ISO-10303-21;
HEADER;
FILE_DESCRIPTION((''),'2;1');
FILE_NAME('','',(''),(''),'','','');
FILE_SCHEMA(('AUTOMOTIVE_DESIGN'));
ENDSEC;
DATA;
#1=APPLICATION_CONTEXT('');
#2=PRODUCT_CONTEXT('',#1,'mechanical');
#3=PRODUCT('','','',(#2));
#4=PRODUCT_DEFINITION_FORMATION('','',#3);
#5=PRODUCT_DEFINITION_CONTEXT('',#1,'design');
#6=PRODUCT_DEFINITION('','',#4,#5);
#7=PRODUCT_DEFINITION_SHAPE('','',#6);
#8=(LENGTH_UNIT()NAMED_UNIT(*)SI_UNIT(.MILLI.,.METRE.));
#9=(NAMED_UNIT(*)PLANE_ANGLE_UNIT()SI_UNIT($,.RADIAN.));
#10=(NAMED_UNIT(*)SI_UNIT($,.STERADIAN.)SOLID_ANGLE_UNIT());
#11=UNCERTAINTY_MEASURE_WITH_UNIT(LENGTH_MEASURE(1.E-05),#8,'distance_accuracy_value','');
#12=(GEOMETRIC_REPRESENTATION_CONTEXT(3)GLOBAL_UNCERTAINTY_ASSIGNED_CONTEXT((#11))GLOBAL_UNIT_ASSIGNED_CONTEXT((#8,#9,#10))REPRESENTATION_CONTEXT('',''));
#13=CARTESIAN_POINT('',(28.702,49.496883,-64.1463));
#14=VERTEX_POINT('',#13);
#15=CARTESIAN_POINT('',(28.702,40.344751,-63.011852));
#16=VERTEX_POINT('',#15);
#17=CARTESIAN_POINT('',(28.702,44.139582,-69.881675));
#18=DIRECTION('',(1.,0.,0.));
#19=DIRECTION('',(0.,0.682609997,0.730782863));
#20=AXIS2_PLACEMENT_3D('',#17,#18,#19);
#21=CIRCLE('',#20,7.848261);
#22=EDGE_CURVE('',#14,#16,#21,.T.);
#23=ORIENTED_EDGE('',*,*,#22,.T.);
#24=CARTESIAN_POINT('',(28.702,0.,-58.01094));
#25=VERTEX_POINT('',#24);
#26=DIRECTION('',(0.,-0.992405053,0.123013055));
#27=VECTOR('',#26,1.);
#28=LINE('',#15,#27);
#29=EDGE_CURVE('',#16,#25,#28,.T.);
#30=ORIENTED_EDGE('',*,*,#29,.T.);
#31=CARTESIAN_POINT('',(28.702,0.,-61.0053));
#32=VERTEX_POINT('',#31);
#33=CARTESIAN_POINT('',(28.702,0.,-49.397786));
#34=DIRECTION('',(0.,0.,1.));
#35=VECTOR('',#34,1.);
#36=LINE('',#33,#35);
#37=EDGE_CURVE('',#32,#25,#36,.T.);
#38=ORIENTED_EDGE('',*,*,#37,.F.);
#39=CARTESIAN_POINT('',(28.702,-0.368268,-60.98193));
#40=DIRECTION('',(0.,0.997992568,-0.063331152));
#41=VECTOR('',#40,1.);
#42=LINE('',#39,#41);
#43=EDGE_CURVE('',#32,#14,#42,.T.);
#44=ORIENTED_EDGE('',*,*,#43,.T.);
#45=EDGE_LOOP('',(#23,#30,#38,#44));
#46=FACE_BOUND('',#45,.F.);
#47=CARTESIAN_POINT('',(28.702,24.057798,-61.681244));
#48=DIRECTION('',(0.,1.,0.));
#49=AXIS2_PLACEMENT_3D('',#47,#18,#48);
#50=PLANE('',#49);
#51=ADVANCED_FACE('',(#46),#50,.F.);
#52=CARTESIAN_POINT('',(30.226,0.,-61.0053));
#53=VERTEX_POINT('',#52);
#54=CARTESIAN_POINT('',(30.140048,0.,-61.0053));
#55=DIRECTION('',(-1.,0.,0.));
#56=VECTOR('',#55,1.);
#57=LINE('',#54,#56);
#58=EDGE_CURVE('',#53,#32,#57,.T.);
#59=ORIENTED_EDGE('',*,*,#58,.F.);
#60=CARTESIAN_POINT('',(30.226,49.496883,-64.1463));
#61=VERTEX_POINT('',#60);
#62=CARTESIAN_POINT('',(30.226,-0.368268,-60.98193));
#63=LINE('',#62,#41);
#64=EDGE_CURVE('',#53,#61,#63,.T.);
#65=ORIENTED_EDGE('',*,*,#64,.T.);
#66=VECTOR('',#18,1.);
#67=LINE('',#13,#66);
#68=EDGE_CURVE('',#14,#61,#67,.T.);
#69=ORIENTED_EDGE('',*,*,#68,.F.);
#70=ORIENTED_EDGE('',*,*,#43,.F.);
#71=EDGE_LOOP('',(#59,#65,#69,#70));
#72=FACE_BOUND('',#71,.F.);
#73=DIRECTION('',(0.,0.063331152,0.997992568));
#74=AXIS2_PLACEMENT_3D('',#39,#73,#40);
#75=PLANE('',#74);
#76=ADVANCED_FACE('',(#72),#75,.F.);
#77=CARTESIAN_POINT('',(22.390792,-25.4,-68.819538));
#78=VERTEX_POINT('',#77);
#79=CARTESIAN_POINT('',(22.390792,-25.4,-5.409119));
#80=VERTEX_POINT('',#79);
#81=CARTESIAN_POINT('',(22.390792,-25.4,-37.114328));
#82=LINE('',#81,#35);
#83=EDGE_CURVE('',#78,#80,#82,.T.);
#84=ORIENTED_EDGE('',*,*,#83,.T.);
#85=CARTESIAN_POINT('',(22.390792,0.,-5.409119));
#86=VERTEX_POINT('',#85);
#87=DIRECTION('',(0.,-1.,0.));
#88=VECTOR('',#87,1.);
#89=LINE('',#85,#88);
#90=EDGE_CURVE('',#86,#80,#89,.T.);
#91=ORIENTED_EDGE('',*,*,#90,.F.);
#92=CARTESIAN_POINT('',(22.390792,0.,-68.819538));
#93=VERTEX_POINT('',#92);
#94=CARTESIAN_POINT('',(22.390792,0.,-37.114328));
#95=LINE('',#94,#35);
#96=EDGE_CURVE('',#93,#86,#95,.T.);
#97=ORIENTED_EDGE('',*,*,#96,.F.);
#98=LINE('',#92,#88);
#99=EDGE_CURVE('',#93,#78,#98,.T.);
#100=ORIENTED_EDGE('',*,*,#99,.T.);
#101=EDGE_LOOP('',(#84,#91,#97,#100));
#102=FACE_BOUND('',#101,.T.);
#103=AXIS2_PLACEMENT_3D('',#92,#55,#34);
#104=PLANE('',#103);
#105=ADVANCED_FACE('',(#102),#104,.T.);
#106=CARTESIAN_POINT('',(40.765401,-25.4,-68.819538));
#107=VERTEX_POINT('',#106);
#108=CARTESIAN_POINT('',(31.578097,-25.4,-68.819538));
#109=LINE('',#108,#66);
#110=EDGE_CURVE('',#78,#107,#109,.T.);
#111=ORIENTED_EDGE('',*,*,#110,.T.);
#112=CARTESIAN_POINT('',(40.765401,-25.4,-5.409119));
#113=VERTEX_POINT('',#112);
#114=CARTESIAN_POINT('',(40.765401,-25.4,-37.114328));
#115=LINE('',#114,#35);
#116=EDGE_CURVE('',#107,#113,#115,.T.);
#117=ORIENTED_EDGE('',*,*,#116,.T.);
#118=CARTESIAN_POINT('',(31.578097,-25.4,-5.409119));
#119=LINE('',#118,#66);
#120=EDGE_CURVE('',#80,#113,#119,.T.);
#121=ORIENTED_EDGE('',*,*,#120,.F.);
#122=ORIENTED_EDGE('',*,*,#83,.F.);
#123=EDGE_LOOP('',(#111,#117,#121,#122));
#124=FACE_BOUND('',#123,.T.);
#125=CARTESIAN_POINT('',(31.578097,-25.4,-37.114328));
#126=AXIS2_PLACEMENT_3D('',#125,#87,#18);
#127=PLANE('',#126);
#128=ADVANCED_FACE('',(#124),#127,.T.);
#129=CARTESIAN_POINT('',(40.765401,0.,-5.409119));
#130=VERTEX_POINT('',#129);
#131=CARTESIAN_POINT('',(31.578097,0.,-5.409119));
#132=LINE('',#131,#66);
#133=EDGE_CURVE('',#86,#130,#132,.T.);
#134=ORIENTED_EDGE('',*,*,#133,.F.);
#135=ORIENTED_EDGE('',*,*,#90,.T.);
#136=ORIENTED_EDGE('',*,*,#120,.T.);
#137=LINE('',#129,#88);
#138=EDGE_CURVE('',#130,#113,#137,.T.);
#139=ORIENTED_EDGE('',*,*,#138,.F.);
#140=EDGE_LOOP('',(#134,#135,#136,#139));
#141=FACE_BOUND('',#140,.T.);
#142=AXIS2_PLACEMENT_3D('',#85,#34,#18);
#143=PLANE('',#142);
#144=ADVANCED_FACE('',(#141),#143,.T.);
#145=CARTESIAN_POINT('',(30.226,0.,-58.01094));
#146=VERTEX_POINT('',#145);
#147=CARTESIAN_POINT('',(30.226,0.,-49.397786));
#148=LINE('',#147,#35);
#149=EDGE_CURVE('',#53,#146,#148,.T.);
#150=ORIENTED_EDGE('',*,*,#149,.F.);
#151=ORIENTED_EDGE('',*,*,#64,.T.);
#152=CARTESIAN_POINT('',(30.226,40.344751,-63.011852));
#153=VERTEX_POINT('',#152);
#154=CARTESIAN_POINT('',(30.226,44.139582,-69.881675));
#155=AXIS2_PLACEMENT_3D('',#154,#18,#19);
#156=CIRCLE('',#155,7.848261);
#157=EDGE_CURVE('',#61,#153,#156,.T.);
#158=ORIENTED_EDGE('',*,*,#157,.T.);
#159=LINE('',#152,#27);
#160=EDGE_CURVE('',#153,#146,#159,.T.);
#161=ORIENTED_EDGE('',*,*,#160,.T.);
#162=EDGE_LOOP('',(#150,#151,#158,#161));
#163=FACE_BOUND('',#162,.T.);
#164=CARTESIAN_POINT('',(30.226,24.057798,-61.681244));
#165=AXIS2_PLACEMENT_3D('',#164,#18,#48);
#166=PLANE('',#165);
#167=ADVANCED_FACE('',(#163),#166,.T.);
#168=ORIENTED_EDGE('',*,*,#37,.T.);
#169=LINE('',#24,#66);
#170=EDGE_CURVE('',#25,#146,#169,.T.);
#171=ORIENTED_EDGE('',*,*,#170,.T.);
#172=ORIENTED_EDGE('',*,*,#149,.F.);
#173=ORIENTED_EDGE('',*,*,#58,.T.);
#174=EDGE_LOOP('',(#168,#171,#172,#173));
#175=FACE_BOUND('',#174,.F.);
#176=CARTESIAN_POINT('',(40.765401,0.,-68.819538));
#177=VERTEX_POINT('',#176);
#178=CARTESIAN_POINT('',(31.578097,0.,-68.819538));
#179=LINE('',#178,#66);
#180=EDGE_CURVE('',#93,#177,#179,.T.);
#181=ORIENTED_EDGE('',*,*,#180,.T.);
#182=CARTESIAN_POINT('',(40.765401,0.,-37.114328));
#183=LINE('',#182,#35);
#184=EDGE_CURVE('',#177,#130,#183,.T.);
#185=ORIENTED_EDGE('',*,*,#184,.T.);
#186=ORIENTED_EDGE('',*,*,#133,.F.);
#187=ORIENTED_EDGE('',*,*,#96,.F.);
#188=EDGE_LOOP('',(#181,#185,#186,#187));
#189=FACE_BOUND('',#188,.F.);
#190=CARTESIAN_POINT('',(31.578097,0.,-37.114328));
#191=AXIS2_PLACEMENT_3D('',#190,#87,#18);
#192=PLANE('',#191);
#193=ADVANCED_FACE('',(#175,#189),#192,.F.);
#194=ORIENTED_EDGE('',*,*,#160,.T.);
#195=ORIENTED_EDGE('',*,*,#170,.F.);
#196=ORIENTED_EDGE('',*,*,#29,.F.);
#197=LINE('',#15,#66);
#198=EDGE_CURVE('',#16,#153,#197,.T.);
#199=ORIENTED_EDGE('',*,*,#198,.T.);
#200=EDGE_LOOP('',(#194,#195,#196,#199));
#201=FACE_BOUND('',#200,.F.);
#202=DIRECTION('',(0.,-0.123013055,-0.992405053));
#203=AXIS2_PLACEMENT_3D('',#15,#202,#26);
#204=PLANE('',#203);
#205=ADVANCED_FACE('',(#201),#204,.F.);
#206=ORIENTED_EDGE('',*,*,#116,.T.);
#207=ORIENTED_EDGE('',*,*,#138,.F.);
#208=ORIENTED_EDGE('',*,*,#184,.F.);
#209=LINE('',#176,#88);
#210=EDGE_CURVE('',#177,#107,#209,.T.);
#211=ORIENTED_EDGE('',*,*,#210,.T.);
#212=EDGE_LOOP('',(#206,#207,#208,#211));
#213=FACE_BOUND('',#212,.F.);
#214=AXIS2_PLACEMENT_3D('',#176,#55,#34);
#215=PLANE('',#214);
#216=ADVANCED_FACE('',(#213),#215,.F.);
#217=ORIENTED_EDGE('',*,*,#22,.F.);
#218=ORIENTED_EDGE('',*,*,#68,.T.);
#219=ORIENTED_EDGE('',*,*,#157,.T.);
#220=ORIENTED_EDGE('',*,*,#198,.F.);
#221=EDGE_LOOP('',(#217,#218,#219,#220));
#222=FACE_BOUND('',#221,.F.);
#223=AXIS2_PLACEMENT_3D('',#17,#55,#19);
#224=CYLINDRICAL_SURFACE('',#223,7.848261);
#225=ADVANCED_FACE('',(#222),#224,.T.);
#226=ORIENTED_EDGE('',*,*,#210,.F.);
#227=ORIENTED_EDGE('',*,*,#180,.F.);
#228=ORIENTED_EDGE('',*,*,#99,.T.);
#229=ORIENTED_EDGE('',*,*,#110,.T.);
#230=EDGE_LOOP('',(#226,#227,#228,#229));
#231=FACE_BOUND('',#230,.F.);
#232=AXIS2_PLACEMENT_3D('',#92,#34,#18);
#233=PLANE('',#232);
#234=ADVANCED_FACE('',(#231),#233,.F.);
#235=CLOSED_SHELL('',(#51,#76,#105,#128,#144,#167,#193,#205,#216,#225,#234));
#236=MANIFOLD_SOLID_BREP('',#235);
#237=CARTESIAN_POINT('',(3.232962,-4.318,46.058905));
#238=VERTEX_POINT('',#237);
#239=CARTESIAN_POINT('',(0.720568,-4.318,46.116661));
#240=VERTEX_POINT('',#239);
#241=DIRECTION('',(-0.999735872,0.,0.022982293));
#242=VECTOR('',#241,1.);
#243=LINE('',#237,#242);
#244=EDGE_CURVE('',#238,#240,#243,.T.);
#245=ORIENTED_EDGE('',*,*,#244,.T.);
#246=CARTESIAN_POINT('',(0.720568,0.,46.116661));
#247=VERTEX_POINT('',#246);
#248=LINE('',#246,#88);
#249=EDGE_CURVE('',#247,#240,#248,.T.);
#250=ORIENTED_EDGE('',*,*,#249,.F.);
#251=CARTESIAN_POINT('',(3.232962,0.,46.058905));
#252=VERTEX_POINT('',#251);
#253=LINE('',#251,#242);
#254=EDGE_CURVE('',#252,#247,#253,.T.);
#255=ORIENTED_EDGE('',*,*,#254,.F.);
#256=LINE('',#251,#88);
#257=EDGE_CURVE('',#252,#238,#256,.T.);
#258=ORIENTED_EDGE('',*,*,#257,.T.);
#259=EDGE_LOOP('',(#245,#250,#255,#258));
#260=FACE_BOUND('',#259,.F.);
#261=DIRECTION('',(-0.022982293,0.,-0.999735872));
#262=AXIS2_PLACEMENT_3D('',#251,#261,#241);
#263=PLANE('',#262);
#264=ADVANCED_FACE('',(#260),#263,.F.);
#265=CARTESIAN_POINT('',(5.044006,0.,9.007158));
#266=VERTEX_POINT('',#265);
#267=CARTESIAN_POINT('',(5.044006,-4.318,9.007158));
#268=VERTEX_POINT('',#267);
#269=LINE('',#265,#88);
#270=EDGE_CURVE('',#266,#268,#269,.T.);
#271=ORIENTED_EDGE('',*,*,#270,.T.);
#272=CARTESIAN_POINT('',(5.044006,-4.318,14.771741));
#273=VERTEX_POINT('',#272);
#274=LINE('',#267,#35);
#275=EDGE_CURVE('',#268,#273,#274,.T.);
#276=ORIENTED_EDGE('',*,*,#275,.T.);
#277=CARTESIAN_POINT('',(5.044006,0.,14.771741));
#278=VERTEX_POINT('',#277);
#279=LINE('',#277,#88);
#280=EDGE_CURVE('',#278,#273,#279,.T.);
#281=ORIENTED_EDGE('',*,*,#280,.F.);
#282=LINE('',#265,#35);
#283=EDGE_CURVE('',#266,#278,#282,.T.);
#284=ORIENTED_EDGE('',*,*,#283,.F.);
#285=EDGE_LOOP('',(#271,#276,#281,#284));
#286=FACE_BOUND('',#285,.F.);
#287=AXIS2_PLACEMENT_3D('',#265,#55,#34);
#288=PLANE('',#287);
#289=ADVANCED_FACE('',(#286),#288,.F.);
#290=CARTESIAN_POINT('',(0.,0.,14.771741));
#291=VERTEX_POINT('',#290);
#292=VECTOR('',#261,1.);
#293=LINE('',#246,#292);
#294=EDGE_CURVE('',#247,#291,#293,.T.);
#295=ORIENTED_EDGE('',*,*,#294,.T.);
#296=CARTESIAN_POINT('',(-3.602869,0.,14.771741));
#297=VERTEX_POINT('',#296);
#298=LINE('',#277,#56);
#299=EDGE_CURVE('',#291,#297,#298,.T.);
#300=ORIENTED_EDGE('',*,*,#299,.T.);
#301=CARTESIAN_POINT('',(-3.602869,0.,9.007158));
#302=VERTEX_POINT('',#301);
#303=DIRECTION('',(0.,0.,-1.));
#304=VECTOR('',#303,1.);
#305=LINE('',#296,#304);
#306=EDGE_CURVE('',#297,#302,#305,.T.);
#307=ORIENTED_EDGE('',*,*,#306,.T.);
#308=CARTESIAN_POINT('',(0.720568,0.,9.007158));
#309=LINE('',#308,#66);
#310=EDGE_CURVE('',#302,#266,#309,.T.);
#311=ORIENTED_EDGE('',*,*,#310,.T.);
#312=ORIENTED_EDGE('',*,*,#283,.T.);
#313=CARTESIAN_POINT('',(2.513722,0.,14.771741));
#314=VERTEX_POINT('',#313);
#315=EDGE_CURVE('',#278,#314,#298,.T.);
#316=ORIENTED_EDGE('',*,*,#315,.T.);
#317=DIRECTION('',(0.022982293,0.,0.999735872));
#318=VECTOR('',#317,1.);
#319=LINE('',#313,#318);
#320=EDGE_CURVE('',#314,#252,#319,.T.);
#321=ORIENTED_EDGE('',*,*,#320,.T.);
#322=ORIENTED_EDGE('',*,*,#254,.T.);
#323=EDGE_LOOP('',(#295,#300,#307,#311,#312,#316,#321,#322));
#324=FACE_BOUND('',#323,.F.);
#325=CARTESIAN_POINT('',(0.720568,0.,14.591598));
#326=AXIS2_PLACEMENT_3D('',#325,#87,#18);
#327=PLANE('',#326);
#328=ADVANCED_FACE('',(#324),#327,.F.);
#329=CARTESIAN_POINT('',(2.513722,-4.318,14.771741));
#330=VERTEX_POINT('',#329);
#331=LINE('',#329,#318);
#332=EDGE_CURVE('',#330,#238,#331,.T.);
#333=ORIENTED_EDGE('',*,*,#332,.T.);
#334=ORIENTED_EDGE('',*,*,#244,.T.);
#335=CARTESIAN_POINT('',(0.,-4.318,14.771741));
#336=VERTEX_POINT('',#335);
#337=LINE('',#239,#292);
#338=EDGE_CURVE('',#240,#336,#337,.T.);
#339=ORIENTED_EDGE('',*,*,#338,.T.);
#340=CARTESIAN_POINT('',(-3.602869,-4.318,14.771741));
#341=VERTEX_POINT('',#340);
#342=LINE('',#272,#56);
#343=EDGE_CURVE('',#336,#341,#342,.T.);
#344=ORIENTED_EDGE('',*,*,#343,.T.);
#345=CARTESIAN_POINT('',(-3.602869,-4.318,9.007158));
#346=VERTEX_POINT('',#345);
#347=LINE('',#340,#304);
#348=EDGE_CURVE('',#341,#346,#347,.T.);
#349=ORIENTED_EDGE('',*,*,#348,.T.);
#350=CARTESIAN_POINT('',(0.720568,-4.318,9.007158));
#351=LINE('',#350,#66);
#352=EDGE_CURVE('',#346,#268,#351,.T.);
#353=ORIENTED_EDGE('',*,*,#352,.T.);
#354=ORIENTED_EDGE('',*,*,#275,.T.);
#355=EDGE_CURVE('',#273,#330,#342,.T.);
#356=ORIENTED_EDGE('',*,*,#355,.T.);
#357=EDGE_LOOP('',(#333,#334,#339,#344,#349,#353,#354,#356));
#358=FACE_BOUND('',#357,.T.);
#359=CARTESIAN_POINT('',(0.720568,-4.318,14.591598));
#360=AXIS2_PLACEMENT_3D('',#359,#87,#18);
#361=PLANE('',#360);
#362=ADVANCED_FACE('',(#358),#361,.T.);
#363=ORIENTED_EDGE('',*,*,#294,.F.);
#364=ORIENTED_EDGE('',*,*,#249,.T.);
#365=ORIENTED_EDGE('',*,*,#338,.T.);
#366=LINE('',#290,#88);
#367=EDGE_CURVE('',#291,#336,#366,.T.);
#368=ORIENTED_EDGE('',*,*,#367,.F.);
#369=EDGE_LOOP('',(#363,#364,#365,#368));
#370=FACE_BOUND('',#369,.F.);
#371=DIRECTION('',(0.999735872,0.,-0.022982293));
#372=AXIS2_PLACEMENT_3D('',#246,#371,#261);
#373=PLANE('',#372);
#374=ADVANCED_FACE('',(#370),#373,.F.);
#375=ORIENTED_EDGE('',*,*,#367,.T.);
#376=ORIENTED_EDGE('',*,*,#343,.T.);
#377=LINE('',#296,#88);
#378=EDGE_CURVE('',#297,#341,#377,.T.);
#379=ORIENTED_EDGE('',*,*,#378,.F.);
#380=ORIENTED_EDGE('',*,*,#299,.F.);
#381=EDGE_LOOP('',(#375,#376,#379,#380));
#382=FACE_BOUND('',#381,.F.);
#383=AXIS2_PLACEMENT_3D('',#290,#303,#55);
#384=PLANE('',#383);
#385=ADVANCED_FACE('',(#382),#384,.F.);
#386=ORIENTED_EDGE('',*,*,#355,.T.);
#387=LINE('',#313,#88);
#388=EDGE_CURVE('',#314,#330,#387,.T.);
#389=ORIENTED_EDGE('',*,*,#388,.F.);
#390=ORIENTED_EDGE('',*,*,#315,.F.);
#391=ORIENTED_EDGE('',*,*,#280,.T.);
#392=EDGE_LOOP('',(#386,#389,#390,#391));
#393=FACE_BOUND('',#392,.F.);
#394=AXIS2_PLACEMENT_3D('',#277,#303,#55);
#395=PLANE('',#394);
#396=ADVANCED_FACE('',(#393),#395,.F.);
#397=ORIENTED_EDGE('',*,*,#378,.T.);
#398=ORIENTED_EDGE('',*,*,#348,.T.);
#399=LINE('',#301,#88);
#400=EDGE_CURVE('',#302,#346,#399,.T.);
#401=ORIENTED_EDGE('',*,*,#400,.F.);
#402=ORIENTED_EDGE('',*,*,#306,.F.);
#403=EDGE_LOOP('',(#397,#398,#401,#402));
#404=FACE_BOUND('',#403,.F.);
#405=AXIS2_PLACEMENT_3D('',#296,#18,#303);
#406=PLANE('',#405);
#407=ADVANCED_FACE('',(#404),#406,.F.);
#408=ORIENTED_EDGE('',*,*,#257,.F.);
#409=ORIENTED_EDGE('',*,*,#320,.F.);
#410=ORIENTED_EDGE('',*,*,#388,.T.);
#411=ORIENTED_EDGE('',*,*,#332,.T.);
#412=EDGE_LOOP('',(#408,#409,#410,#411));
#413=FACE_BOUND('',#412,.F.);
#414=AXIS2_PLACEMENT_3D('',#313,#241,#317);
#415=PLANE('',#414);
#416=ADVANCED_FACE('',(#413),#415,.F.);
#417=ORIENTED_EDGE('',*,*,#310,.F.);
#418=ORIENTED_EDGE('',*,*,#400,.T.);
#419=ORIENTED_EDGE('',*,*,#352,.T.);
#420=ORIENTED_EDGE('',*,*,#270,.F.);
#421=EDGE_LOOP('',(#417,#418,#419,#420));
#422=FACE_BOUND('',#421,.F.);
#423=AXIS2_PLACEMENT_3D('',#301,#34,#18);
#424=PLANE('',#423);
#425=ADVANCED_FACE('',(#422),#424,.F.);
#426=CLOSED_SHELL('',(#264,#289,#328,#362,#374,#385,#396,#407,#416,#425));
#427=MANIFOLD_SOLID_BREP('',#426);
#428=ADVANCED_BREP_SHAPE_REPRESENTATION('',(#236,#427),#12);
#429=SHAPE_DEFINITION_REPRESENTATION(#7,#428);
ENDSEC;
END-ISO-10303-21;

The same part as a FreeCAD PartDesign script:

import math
import FreeCAD as App
import Part
import Sketcher

V = App.Vector
Q = App.Units.Quantity

doc = App.newDocument("Part")
body = doc.addObject("PartDesign::Body", "Body")

# Sketch on XZ plane
sketch1 = doc.addObject("Sketcher::SketchObject", "Sketch")
body.addObject(sketch1)
sketch1.AttachmentSupport = (doc.XZ_Plane, [""])
sketch1.MapMode = "FlatFace"
sketch1.addGeometry(Part.LineSegment(V(-3.6, 14.8, 0), V(-3.6, 9, 0)), False)
sketch1.addGeometry(Part.LineSegment(V(-3.6, 9, 0), V(5, 9, 0)), False)
sketch1.addGeometry(Part.LineSegment(V(5, 9, 0), V(5, 14.8, 0)), False)
sketch1.addGeometry(Part.LineSegment(V(5, 14.8, 0), V(2.5, 14.8, 0)), False)
sketch1.addGeometry(Part.LineSegment(V(2.5, 14.8, 0), V(3.2, 46.1, 0)), False)
sketch1.addGeometry(Part.LineSegment(V(3.2, 46.1, 0), V(0.7, 46.1, 0)), False)
sketch1.addGeometry(Part.LineSegment(V(0.7, 46.1, 0), V(0, 14.8, 0)), False)
sketch1.addGeometry(Part.LineSegment(V(0, 14.8, 0), V(-3.6, 14.8, 0)), False)
sketch1.addConstraint(Sketcher.Constraint("Coincident", 0, 2, 1, 1))
sketch1.addConstraint(Sketcher.Constraint("Coincident", 1, 2, 2, 1))
sketch1.addConstraint(Sketcher.Constraint("Coincident", 2, 2, 3, 1))
sketch1.addConstraint(Sketcher.Constraint("Coincident", 3, 2, 4, 1))
sketch1.addConstraint(Sketcher.Constraint("Coincident", 4, 2, 5, 1))
sketch1.addConstraint(Sketcher.Constraint("Coincident", 5, 2, 6, 1))
sketch1.addConstraint(Sketcher.Constraint("Coincident", 6, 2, 7, 1))
sketch1.addConstraint(Sketcher.Constraint("Coincident", 7, 2, 0, 1))
sketch1.addConstraint(Sketcher.Constraint("Vertical", 0))
sketch1.addConstraint(Sketcher.Constraint("Horizontal", 1))
sketch1.addConstraint(Sketcher.Constraint("Vertical", 2))
sketch1.addConstraint(Sketcher.Constraint("Horizontal", 3))
sketch1.addConstraint(Sketcher.Constraint("Horizontal", 7))
sketch1.addConstraint(Sketcher.Constraint("PointOnObject", 6, 2, -2))
sketch1.addConstraint(Sketcher.Constraint("Perpendicular", 4, 5))
sketch1.addConstraint(Sketcher.Constraint("Perpendicular", 5, 6))
sketch1.addConstraint(Sketcher.Constraint("Horizontal", 3, 2, 6, 2))
sketch1.addConstraint(Sketcher.Constraint("Distance", 6, 31.353202))
sketch1.addConstraint(Sketcher.Constraint("DistanceX", 7, 2, 7, 1, 3.602869))
sketch1.addConstraint(Sketcher.Constraint("Distance", 4, 31.295431))
sketch1.addConstraint(Sketcher.Constraint("DistanceX", 1, 1, 1, 2, 8.646875))
sketch1.addConstraint(Sketcher.Constraint("DistanceX", 3, 2, 3, 1, 2.530284))
sketch1.addConstraint(Sketcher.Constraint("DistanceY", 0, 2, 0, 1, 5.764583))
sketch1.addConstraint(Sketcher.Constraint("DistanceY", -1, 1, 2, 2, 14.771741))
pad1 = doc.addObject("PartDesign::Pad", "Pad")
body.addObject(pad1)
pad1.Profile = sketch1
pad1.Length = Q("0.17 in")
body2 = doc.addObject("PartDesign::Body", "Body001")

# Sketch on XZ plane
sketch2 = doc.addObject("Sketcher::SketchObject", "Sketch001")
body2.addObject(sketch2)
sketch2.AttachmentSupport = (doc.getObject("XZ_Plane001"), [""])
sketch2.MapMode = "FlatFace"
sketch2.addGeometry(Part.LineSegment(V(22, -5, 0), V(22, -69, 0)), False)
sketch2.addGeometry(Part.LineSegment(V(22, -69, 0), V(41, -69, 0)), False)
sketch2.addGeometry(Part.LineSegment(V(41, -69, 0), V(41, -5, 0)), False)
sketch2.addGeometry(Part.LineSegment(V(41, -5, 0), V(22, -5, 0)), False)
sketch2.addConstraint(Sketcher.Constraint("Coincident", 0, 2, 1, 1))
sketch2.addConstraint(Sketcher.Constraint("Coincident", 1, 2, 2, 1))
sketch2.addConstraint(Sketcher.Constraint("Coincident", 2, 2, 3, 1))
sketch2.addConstraint(Sketcher.Constraint("Coincident", 3, 2, 0, 1))
sketch2.addConstraint(Sketcher.Constraint("Vertical", 0))
sketch2.addConstraint(Sketcher.Constraint("Horizontal", 1))
sketch2.addConstraint(Sketcher.Constraint("Vertical", 2))
sketch2.addConstraint(Sketcher.Constraint("Horizontal", 3))
sketch2.addConstraint(Sketcher.Constraint("DistanceX", 1, 1, 1, 2, 18.374609))
sketch2.addConstraint(Sketcher.Constraint("DistanceY", 0, 2, 0, 1, 63.410419))
sketch2.addConstraint(Sketcher.Constraint("DistanceX", -1, 1, 1, 2, 40.765401))
sketch2.addConstraint(Sketcher.Constraint("DistanceY", 2, 2, -1, 1, 5.409119))
pad2 = doc.addObject("PartDesign::Pad", "Pad001")
body2.addObject(pad2)
pad2.Profile = sketch2
pad2.Length = Q("1 in")

# Sketch on YZ plane
sketch3 = doc.addObject("Sketcher::SketchObject", "Sketch002")
body2.addObject(sketch3)
sketch3.AttachmentSupport = (doc.getObject("YZ_Plane001"), [""])
sketch3.MapMode = "FlatFace"
sketch3.AttachmentOffset = App.Placement(V(0, 0, 1.13 * 25.4), App.Rotation())
sketch3.addGeometry(Part.LineSegment(V(40.344751, -63.011852, 0), V(0, -58.01094, 0)), False)
sketch3.addGeometry(Part.LineSegment(V(0, -58.01094, 0), V(-0.368268, -60.98193, 0)), False)
sketch3.addGeometry(Part.LineSegment(V(-0.368268, -60.98193, 0), V(49.496883, -64.1463, 0)), False)
sketch3.addGeometry(Part.ArcOfCircle(Part.Circle(V(44.139582, -69.881675, 0), V(0, 0, 1), 7.848261), math.radians(46.952064), math.radians(118.915882)), False)
sketch3.addConstraint(Sketcher.Constraint("Coincident", 0, 2, 1, 1))
sketch3.addConstraint(Sketcher.Constraint("Coincident", 1, 2, 2, 1))
sketch3.addConstraint(Sketcher.Constraint("Coincident", 2, 2, 3, 1))
sketch3.addConstraint(Sketcher.Constraint("Coincident", 3, 2, 0, 1))
sketch3.addConstraint(Sketcher.Constraint("PointOnObject", 0, 2, -2))
sketch3.addConstraint(Sketcher.Constraint("Radius", 3, 7.848261))
sketch3.addConstraint(Sketcher.Constraint("DistanceY", 2, 2, -1, 1, 64.1463))
sketch3.addConstraint(Sketcher.Constraint("DistanceX", 3, 3, 2, 2, 5.357301))
sketch3.addConstraint(Sketcher.Constraint("Distance", 1, 2.993728))
sketch3.addConstraint(Sketcher.Constraint("DistanceX", -1, 1, 3, 3, 44.139582))
sketch3.addConstraint(Sketcher.Constraint("DistanceY", 0, 2, -1, 1, 58.01094))
sketch3.addConstraint(Sketcher.Constraint("DistanceY", 1, 2, -1, 1, 60.98193))
sketch3.addConstraint(Sketcher.Constraint("DistanceX", -1, 1, 3, 2, 40.344751))
pad3 = doc.addObject("PartDesign::Pad", "Pad002")
body2.addObject(pad3)
pad3.Profile = sketch3
pad3.Length = Q("0.06 in")

doc.recompute()
